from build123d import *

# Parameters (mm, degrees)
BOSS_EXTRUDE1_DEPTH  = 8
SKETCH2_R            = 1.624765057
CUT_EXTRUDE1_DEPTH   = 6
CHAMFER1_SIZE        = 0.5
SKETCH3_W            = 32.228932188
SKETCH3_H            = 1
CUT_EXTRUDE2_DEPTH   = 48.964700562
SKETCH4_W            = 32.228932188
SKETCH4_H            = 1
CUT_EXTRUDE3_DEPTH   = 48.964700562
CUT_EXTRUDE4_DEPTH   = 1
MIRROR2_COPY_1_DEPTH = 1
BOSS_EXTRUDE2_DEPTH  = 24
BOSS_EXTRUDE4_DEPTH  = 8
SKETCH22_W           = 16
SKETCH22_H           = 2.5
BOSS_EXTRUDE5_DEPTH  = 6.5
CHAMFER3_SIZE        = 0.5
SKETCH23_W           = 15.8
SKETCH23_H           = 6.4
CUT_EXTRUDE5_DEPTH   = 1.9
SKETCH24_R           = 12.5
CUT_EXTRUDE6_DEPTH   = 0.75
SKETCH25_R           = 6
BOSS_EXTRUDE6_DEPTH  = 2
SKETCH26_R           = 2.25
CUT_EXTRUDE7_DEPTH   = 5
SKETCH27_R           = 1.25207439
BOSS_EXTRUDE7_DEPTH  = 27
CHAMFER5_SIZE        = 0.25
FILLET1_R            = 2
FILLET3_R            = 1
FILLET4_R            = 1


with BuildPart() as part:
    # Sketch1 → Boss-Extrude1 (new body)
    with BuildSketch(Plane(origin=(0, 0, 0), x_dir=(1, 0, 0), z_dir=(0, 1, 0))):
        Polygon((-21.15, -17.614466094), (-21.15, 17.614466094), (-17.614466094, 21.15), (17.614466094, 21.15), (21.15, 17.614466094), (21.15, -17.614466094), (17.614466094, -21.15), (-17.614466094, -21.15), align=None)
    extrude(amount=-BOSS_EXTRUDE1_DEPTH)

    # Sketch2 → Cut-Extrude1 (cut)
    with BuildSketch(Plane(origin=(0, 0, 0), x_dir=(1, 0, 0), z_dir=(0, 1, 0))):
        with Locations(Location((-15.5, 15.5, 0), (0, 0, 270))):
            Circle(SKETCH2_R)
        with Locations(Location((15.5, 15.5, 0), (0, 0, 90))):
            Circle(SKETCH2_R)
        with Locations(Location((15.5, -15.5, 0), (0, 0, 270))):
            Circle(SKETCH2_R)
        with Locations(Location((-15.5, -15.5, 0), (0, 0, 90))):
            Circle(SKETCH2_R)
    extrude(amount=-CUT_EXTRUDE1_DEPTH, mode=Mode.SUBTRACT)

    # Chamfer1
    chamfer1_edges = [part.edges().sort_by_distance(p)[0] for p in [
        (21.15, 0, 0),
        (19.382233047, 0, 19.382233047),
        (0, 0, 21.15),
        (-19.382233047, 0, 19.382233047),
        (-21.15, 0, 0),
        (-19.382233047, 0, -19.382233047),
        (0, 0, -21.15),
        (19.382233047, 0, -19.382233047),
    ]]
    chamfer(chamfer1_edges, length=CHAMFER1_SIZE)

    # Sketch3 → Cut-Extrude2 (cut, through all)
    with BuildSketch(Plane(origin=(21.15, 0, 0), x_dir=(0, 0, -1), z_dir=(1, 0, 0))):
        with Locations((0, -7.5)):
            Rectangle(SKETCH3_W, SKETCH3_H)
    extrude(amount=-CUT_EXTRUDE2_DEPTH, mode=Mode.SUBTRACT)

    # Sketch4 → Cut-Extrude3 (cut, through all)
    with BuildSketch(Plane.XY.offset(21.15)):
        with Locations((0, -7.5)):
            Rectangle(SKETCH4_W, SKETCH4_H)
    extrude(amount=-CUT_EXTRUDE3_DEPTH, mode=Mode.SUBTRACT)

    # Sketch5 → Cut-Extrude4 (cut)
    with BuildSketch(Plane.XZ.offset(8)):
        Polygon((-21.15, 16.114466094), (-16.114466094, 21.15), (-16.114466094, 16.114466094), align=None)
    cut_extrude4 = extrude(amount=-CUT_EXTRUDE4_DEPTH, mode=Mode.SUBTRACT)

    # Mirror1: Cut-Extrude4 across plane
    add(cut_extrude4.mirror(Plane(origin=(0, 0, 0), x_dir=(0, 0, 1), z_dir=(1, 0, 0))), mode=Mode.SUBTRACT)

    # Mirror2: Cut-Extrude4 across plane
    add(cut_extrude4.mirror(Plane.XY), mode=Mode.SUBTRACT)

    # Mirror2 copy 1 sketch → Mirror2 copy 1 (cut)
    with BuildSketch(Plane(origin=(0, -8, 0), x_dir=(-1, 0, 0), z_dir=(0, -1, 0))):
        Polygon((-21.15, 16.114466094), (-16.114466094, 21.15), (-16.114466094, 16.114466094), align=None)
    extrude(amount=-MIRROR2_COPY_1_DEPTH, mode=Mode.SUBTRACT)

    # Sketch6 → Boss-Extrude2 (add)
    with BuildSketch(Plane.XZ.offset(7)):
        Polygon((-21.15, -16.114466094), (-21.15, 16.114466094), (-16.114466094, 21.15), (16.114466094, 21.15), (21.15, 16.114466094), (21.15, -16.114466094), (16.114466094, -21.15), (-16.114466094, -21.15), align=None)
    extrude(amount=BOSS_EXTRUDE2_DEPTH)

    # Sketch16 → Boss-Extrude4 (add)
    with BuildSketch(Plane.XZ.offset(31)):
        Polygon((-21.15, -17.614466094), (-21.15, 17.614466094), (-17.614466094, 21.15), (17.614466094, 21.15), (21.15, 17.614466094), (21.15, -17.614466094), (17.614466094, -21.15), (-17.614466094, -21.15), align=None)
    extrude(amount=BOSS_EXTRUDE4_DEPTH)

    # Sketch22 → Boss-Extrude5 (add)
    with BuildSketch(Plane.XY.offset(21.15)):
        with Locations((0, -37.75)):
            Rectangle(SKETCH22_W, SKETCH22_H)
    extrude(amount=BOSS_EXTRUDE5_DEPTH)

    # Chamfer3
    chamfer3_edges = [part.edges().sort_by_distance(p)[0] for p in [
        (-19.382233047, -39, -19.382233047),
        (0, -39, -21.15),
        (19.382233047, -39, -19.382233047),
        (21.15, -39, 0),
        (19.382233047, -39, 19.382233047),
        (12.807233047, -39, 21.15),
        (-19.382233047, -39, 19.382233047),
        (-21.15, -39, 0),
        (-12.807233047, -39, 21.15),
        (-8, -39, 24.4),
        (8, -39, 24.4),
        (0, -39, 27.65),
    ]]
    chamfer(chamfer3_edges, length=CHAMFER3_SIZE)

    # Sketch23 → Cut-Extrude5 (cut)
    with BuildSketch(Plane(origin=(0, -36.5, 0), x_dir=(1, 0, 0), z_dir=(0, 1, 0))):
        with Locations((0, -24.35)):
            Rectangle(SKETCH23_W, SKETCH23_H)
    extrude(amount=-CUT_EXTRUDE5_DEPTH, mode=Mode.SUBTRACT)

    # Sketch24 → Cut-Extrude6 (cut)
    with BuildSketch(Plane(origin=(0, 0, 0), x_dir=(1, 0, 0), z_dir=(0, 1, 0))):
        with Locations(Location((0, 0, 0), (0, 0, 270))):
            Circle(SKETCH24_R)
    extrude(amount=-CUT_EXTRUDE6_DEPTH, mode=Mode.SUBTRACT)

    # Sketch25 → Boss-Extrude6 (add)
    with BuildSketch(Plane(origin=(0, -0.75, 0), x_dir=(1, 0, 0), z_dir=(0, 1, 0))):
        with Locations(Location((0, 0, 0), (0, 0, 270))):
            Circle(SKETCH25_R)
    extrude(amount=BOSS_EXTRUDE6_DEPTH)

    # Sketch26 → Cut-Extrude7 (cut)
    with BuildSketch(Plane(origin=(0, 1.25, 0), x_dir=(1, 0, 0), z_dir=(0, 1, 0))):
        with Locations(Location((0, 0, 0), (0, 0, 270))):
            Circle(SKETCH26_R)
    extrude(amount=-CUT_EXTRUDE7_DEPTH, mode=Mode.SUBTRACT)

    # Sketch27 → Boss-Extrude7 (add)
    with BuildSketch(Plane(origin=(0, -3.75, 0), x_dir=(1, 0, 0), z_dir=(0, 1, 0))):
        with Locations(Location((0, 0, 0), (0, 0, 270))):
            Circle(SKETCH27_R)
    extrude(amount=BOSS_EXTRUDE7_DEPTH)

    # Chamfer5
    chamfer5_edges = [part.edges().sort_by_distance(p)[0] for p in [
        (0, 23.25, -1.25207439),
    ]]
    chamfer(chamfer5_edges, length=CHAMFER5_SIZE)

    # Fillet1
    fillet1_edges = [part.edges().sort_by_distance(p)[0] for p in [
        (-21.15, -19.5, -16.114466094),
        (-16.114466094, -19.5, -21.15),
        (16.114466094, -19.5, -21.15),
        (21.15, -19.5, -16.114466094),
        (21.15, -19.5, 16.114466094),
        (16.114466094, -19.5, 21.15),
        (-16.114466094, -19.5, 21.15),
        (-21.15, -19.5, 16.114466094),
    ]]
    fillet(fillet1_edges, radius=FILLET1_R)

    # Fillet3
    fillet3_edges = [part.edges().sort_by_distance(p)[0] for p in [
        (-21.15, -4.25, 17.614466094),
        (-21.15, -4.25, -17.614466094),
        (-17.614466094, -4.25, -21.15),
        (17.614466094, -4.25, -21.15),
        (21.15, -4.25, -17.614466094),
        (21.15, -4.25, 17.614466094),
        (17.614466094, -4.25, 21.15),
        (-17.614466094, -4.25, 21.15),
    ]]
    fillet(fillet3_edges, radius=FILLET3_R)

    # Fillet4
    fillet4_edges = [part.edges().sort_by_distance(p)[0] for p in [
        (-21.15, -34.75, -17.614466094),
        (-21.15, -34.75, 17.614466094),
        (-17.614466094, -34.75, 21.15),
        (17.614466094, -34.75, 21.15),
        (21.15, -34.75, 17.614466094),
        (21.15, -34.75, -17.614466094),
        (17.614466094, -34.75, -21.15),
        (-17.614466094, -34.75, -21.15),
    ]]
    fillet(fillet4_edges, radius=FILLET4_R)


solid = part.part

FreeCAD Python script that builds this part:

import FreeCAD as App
import Part
import Sketcher

V = App.Vector


def edges_at(feature, points):
    """Names of the edges that pass closest to the given points."""
    edges = feature.Shape.Edges
    near = lambda p: min(range(len(edges)), key=lambda i: edges[i].distToShape(Part.Vertex(*p))[0])
    return sorted({f"Edge{near(p) + 1}" for p in points})


def add_polygon(sketch, points):
    """Adds a closed chain of lines whose ends are joined by coincident constraints."""
    first, n = sketch.GeometryCount, len(points)
    for a, b in zip(points, points[1:] + points[:1]):
        sketch.addGeometry(Part.LineSegment(App.Vector(*a, 0), App.Vector(*b, 0)), False)
    for i in range(n):
        sketch.addConstraint(Sketcher.Constraint("Coincident", first + i, 2, first + (i + 1) % n, 1))

doc = App.newDocument("Part")
body = doc.addObject("PartDesign::Body", "Body")

# Sketch on XZ plane
sketch1 = doc.addObject("Sketcher::SketchObject", "Sketch")
body.addObject(sketch1)
sketch1.AttachmentSupport = (doc.XZ_Plane, [""])
sketch1.MapMode = "FlatFace"
add_polygon(sketch1, [(-21, -18), (-21, 18), (-18, 21), (18, 21), (21, 18), (21, -18), (18, -21), (-18, -21)])  # lines 0-7
sketch1.addConstraint([
    Sketcher.Constraint("Vertical", 0),
    Sketcher.Constraint("Horizontal", 2),
    Sketcher.Constraint("Vertical", 4),
    Sketcher.Constraint("Horizontal", 6),
    Sketcher.Constraint("Symmetric", 0, 2, 4, 2, -1, 1),
    Sketcher.Constraint("Symmetric", 1, 2, 5, 2, -1, 1),
    Sketcher.Constraint("Perpendicular", 1, 3),
    Sketcher.Constraint("Perpendicular", 5, 7),
    Sketcher.Constraint("Horizontal", 0, 2, 3, 2),
    Sketcher.Constraint("Horizontal", 4, 2, 7, 2),
    Sketcher.Constraint("Vertical", 2, 2, 5, 2),
    Sketcher.Constraint("Equal", 6, 0),
    Sketcher.Constraint("Distance", 1, 5.0),
    Sketcher.Constraint("DistanceX", 0, 2, 3, 2, 42.3),
])
pad1 = doc.addObject("PartDesign::Pad", "Pad")
body.addObject(pad1)
pad1.Profile = sketch1
pad1.Length = 8

# Sketch on XZ plane
sketch2 = doc.addObject("Sketcher::SketchObject", "Sketch001")
body.addObject(sketch2)
sketch2.AttachmentSupport = (doc.XZ_Plane, [""])
sketch2.MapMode = "FlatFace"
sketch2.addGeometry([
    Part.Circle(V(-15.5, -15.5, 0), V(0, 0, 1), 1.6),
    Part.Circle(V(15.5, -15.5, 0), V(0, 0, 1), 1.6),
    Part.Circle(V(15.5, 15.5, 0), V(0, 0, 1), 1.6),
    Part.Circle(V(-15.5, 15.5, 0), V(0, 0, 1), 1.6),
], False)
sketch2.addConstraint([
    Sketcher.Constraint("Equal", 0, 1),
    Sketcher.Constraint("Equal", 1, 2),
    Sketcher.Constraint("Equal", 2, 3),
    Sketcher.Constraint("Symmetric", 0, 3, 2, 3, -1, 1),
    Sketcher.Constraint("Symmetric", 1, 3, 3, 3, -1, 1),
    Sketcher.Constraint("Symmetric", 0, 3, 1, 3, -2),
    Sketcher.Constraint("DistanceX", 0, 3, 1, 3, 31.0),
    Sketcher.Constraint("DistanceY", 1, 3, 2, 3, 31.0),
    Sketcher.Constraint("Diameter", 0, 3.24953),
])
pocket1 = doc.addObject("PartDesign::Pocket", "Pocket")
body.addObject(pocket1)
pocket1.Profile = sketch2
pocket1.Length = 6
pocket1.Reversed = True
doc.recompute()

chamfer = doc.addObject("PartDesign::Chamfer", "Chamfer")
body.addObject(chamfer)
chamfer.Base = (pocket1, edges_at(pocket1, [
    (21.15, 0, 0),
    (19.382, 0, 19.382),
    (0, 0, 21.15),
    (-19.382, 0, 19.382),
    (-21.15, 0, 0),
    (-19.382, 0, -19.382),
    (0, 0, -21.15),
    (19.382, 0, -19.382),
]))
chamfer.Size = 0.5

# Sketch on YZ plane
sketch3 = doc.addObject("Sketcher::SketchObject", "Sketch002")
body.addObject(sketch3)
sketch3.AttachmentSupport = (doc.YZ_Plane, [""])
sketch3.MapMode = "FlatFace"
sketch3.AttachmentOffset = App.Placement(V(0, 0, 21.15), App.Rotation())
add_polygon(sketch3, [(-7, 16.1), (-8, 16.1), (-8, -16.1), (-7, -16.1)])  # lines 0-3
sketch3.addConstraint([
    Sketcher.Constraint("Horizontal", 0),
    Sketcher.Constraint("Vertical", 1),
    Sketcher.Constraint("Horizontal", 2),
    Sketcher.Constraint("Vertical", 3),
    Sketcher.Constraint("DistanceX", 0, 2, 0, 1, 1.0),
    Sketcher.Constraint("DistanceX", 0, 2, -1, 1, 8.0),
    Sketcher.Constraint("DistanceY", 1, 2, 1, 1, 32.228932),
    Sketcher.Constraint("DistanceY", -1, 1, 0, 2, 16.114466),
])
pocket2 = doc.addObject("PartDesign::Pocket", "Pocket001")
body.addObject(pocket2)
pocket2.Profile = sketch3
pocket2.Type = "ThroughAll"

# Sketch on XY plane
sketch4 = doc.addObject("Sketcher::SketchObject", "Sketch003")
body.addObject(sketch4)
sketch4.AttachmentSupport = (doc.XY_Plane, [""])
sketch4.MapMode = "FlatFace"
sketch4.AttachmentOffset = App.Placement(V(0, 0, 21.15), App.Rotation())
add_polygon(sketch4, [(-16.1, -7), (-16.1, -8), (16.1, -8), (16.1, -7)])  # lines 0-3
sketch4.addConstraint([
    Sketcher.Constraint("Vertical", 0),
    Sketcher.Constraint("Horizontal", 1),
    Sketcher.Constraint("Vertical", 2),
    Sketcher.Constraint("Horizontal", 3),
    Sketcher.Constraint("DistanceY", 0, 2, 0, 1, 1.0),
    Sketcher.Constraint("DistanceY", 0, 2, -1, 1, 8.0),
    Sketcher.Constraint("DistanceX", 1, 1, 1, 2, 32.228932),
    Sketcher.Constraint("DistanceX", 0, 2, -1, 1, 16.114466),
])
pocket3 = doc.addObject("PartDesign::Pocket", "Pocket002")
body.addObject(pocket3)
pocket3.Profile = sketch4
pocket3.Type = "ThroughAll"

# Sketch on XZ plane
sketch5 = doc.addObject("Sketcher::SketchObject", "Sketch004")
body.addObject(sketch5)
sketch5.AttachmentSupport = (doc.XZ_Plane, [""])
sketch5.MapMode = "FlatFace"
sketch5.AttachmentOffset = App.Placement(V(0, 0, 8), App.Rotation())
add_polygon(sketch5, [(-16, 21), (-21, 16), (-16, 16)])  # lines 0-2
sketch5.addConstraint([
    Sketcher.Constraint("Horizontal", 1),
    Sketcher.Constraint("Vertical", 2),
    Sketcher.Constraint("Equal", 1, 2),
    Sketcher.Constraint("DistanceX", 0, 2, -1, 1, 21.15),
    Sketcher.Constraint("DistanceY", -1, 1, 2, 2, 21.15),
    Sketcher.Constraint("Distance", 0, 7.12132),
])
pocket4 = doc.addObject("PartDesign::Pocket", "Pocket003")
body.addObject(pocket4)
pocket4.Profile = sketch5
pocket4.Length = 1
doc.recompute()

mirrored = doc.addObject("PartDesign::Mirrored", "Mirrored")
body.addObject(mirrored)
mirrored.Originals = [pocket4]
mirrored.MirrorPlane = (doc.YZ_Plane, [""])
body.Tip = mirrored
doc.recompute()

mirrored2 = doc.addObject("PartDesign::Mirrored", "Mirrored001")
body.addObject(mirrored2)
mirrored2.Originals = [pocket4]
mirrored2.MirrorPlane = (doc.XY_Plane, [""])
body.Tip = mirrored2

# Sketch on XZ plane
sketch6 = doc.addObject("Sketcher::SketchObject", "Sketch005")
body.addObject(sketch6)
sketch6.AttachmentSupport = (doc.XZ_Plane, [""])
sketch6.MapMode = "FlatFace"
sketch6.AttachmentOffset = App.Placement(V(0, 0, 8), App.Rotation())
add_polygon(sketch6, [(16, -21), (21, -16), (16, -16)])  # lines 0-2
sketch6.addConstraint([
    Sketcher.Constraint("Horizontal", 1),
    Sketcher.Constraint("Vertical", 2),
    Sketcher.Constraint("Equal", 1, 2),
    Sketcher.Constraint("DistanceX", -1, 1, 0, 2, 21.15),
    Sketcher.Constraint("DistanceY", 2, 2, -1, 1, 21.15),
    Sketcher.Constraint("Distance", 0, 7.12132),
])
pocket5 = doc.addObject("PartDesign::Pocket", "Pocket004")
body.addObject(pocket5)
pocket5.Profile = sketch6
pocket5.Length = 1

# Sketch on XZ plane
sketch7 = doc.addObject("Sketcher::SketchObject", "Sketch006")
body.addObject(sketch7)
sketch7.AttachmentSupport = (doc.XZ_Plane, [""])
sketch7.MapMode = "FlatFace"
sketch7.AttachmentOffset = App.Placement(V(0, 0, 7), App.Rotation())
add_polygon(sketch7, [(-21, 16), (-21, -16), (-16, -21), (16, -21), (21, -16), (21, 16), (16, 21), (-16, 21)])  # lines 0-7
sketch7.addConstraint([
    Sketcher.Constraint("Vertical", 0),
    Sketcher.Constraint("Horizontal", 2),
    Sketcher.Constraint("Vertical", 4),
    Sketcher.Constraint("Horizontal", 6),
    Sketcher.Constraint("Symmetric", 0, 2, 4, 2, -1, 1),
    Sketcher.Constraint("Symmetric", 1, 2, 5, 2, -1, 1),
    Sketcher.Constraint("Perpendicular", 1, 3),
    Sketcher.Constraint("Perpendicular", 5, 7),
    Sketcher.Constraint("Horizontal", 0, 2, 3, 2),
    Sketcher.Constraint("Horizontal", 4, 2, 7, 2),
    Sketcher.Constraint("Vertical", 2, 2, 5, 2),
    Sketcher.Constraint("Equal", 6, 0),
    Sketcher.Constraint("DistanceX", 0, 2, 3, 2, 42.3),
    Sketcher.Constraint("Distance", 1, 7.12132),
])
pad2 = doc.addObject("PartDesign::Pad", "Pad001")
body.addObject(pad2)
pad2.Profile = sketch7
pad2.Length = 24

# Sketch on XZ plane
sketch8 = doc.addObject("Sketcher::SketchObject", "Sketch007")
body.addObject(sketch8)
sketch8.AttachmentSupport = (doc.XZ_Plane, [""])
sketch8.MapMode = "FlatFace"
sketch8.AttachmentOffset = App.Placement(V(0, 0, 31), App.Rotation())
add_polygon(sketch8, [(-21, 18), (-21, -18), (-18, -21), (18, -21), (21, -18), (21, 18), (18, 21), (-18, 21)])  # lines 0-7
sketch8.addConstraint([
    Sketcher.Constraint("Vertical", 0),
    Sketcher.Constraint("Horizontal", 2),
    Sketcher.Constraint("Vertical", 4),
    Sketcher.Constraint("Horizontal", 6),
    Sketcher.Constraint("Symmetric", 0, 2, 4, 2, -1, 1),
    Sketcher.Constraint("Symmetric", 1, 2, 5, 2, -1, 1),
    Sketcher.Constraint("Perpendicular", 1, 3),
    Sketcher.Constraint("Perpendicular", 5, 7),
    Sketcher.Constraint("Horizontal", 0, 2, 3, 2),
    Sketcher.Constraint("Horizontal", 4, 2, 7, 2),
    Sketcher.Constraint("Vertical", 2, 2, 5, 2),
    Sketcher.Constraint("Equal", 6, 0),
    Sketcher.Constraint("Distance", 1, 5.0),
    Sketcher.Constraint("DistanceX", 0, 2, 3, 2, 42.3),
])
pad3 = doc.addObject("PartDesign::Pad", "Pad002")
body.addObject(pad3)
pad3.Profile = sketch8
pad3.Length = 8

# Sketch on XY plane
sketch9 = doc.addObject("Sketcher::SketchObject", "Sketch008")
body.addObject(sketch9)
sketch9.AttachmentSupport = (doc.XY_Plane, [""])
sketch9.MapMode = "FlatFace"
sketch9.AttachmentOffset = App.Placement(V(0, 0, 21.15), App.Rotation())
add_polygon(sketch9, [(-8, -36.5), (-8, -39), (8, -39), (8, -36.5)])  # lines 0-3
sketch9.addConstraint([
    Sketcher.Constraint("Vertical", 0),
    Sketcher.Constraint("Horizontal", 1),
    Sketcher.Constraint("Vertical", 2),
    Sketcher.Constraint("Horizontal", 3),
    Sketcher.Constraint("DistanceX", 1, 1, 1, 2, 16.0),
    Sketcher.Constraint("DistanceY", 0, 2, 0, 1, 2.5),
    Sketcher.Constraint("DistanceX", 0, 2, -1, 1, 8.0),
    Sketcher.Constraint("DistanceY", 0, 2, -1, 1, 39.0),
])
pad4 = doc.addObject("PartDesign::Pad", "Pad003")
body.addObject(pad4)
pad4.Profile = sketch9
pad4.Length = 6.5
doc.recompute()

chamfer2 = doc.addObject("PartDesign::Chamfer", "Chamfer001")
body.addObject(chamfer2)
chamfer2.Base = (pad4, edges_at(pad4, [
    (-19.382, -39, -19.382),
    (0, -39, -21.15),
    (19.382, -39, -19.382),
    (21.15, -39, 0),
    (19.382, -39, 19.382),
    (12.807, -39, 21.15),
    (-19.382, -39, 19.382),
    (-21.15, -39, 0),
    (-12.807, -39, 21.15),
    (-8, -39, 24.4),
    (8, -39, 24.4),
    (0, -39, 27.65),
]))
chamfer2.Size = 0.5

# Sketch on XZ plane
sketch10 = doc.addObject("Sketcher::SketchObject", "Sketch009")
body.addObject(sketch10)
sketch10.AttachmentSupport = (doc.XZ_Plane, [""])
sketch10.MapMode = "FlatFace"
sketch10.AttachmentOffset = App.Placement(V(0, 0, 36.5), App.Rotation())
add_polygon(sketch10, [(-8, 21), (-8, 28), (8, 28), (8, 21)])  # lines 0-3
sketch10.addConstraint([
    Sketcher.Constraint("Vertical", 0),
    Sketcher.Constraint("Horizontal", 1),
    Sketcher.Constraint("Vertical", 2),
    Sketcher.Constraint("Horizontal", 3),
    Sketcher.Constraint("DistanceX", 1, 1, 1, 2, 15.8),
    Sketcher.Constraint("DistanceY", 0, 1, 0, 2, 6.4),
    Sketcher.Constraint("DistanceX", 0, 2, -1, 1, 7.9),
    Sketcher.Constraint("DistanceY", -1, 1, 0, 2, 27.55),
])
pocket6 = doc.addObject("PartDesign::Pocket", "Pocket005")
body.addObject(pocket6)
pocket6.Profile = sketch10
pocket6.Length = 1.9
pocket6.Reversed = True

# Sketch on XZ plane
sketch11 = doc.addObject("Sketcher::SketchObject", "Sketch010")
body.addObject(sketch11)
sketch11.AttachmentSupport = (doc.XZ_Plane, [""])
sketch11.MapMode = "FlatFace"
sketch11.addGeometry(Part.Circle(V(0, 0, 0), V(0, 0, 1), 12), False)
sketch11.addConstraint([
    Sketcher.Constraint("Coincident", 0, 3, -1, 1),
    Sketcher.Constraint("Diameter", 0, 25.0),
])
pocket7 = doc.addObject("PartDesign::Pocket", "Pocket006")
body.addObject(pocket7)
pocket7.Profile = sketch11
pocket7.Length = 0.75
pocket7.Reversed = True

# Sketch on XZ plane
sketch12 = doc.addObject("Sketcher::SketchObject", "Sketch011")
body.addObject(sketch12)
sketch12.AttachmentSupport = (doc.XZ_Plane, [""])
sketch12.MapMode = "FlatFace"
sketch12.AttachmentOffset = App.Placement(V(0, 0, 0.75), App.Rotation())
sketch12.addGeometry(Part.Circle(V(0, 0, 0), V(0, 0, 1), 6), False)
sketch12.addConstraint([
    Sketcher.Constraint("Coincident", 0, 3, -1, 1),
    Sketcher.Constraint("Diameter", 0, 12.0),
])
pad5 = doc.addObject("PartDesign::Pad", "Pad004")
body.addObject(pad5)
pad5.Profile = sketch12
pad5.Length = 2
pad5.Reversed = True

# Sketch on XZ plane
sketch13 = doc.addObject("Sketcher::SketchObject", "Sketch012")
body.addObject(sketch13)
sketch13.AttachmentSupport = (doc.XZ_Plane, [""])
sketch13.MapMode = "FlatFace"
sketch13.AttachmentOffset = App.Placement(V(0, 0, -1.25), App.Rotation())
sketch13.addGeometry(Part.Circle(V(0, 0, 0), V(0, 0, 1), 2.2), False)
sketch13.addConstraint([
    Sketcher.Constraint("Coincident", 0, 3, -1, 1),
    Sketcher.Constraint("Diameter", 0, 4.5),
])
pocket8 = doc.addObject("PartDesign::Pocket", "Pocket007")
body.addObject(pocket8)
pocket8.Profile = sketch13
pocket8.Length = 5
pocket8.Reversed = True

# Sketch on XZ plane
sketch14 = doc.addObject("Sketcher::SketchObject", "Sketch013")
body.addObject(sketch14)
sketch14.AttachmentSupport = (doc.XZ_Plane, [""])
sketch14.MapMode = "FlatFace"
sketch14.AttachmentOffset = App.Placement(V(0, 0, 3.75), App.Rotation())
sketch14.addGeometry(Part.Circle(V(0, 0, 0), V(0, 0, 1), 1.3), False)
sketch14.addConstraint([
    Sketcher.Constraint("Coincident", 0, 3, -1, 1),
    Sketcher.Constraint("Diameter", 0, 2.504149),
])
pad6 = doc.addObject("PartDesign::Pad", "Pad005")
body.addObject(pad6)
pad6.Profile = sketch14
pad6.Length = 27
pad6.Reversed = True
doc.recompute()

chamfer3 = doc.addObject("PartDesign::Chamfer", "Chamfer002")
body.addObject(chamfer3)
chamfer3.Base = (pad6, edges_at(pad6, [(0, 23.25, -1.252)]))
chamfer3.Size = 0.25
doc.recompute()

fillet = doc.addObject("PartDesign::Fillet", "Fillet")
body.addObject(fillet)
fillet.Base = (chamfer3, edges_at(chamfer3, [
    (-21.15, -19.5, -16.114),
    (-16.114, -19.5, -21.15),
    (16.114, -19.5, -21.15),
    (21.15, -19.5, -16.114),
    (21.15, -19.5, 16.114),
    (16.114, -19.5, 21.15),
    (-16.114, -19.5, 21.15),
    (-21.15, -19.5, 16.114),
]))
fillet.Radius = 2
doc.recompute()

fillet2 = doc.addObject("PartDesign::Fillet", "Fillet001")
body.addObject(fillet2)
fillet2.Base = (fillet, edges_at(fillet, [
    (-21.15, -4.25, 17.614),
    (-21.15, -4.25, -17.614),
    (-17.614, -4.25, -21.15),
    (17.614, -4.25, -21.15),
    (21.15, -4.25, -17.614),
    (21.15, -4.25, 17.614),
    (17.614, -4.25, 21.15),
    (-17.614, -4.25, 21.15),
]))
fillet2.Radius = 1
doc.recompute()

fillet3 = doc.addObject("PartDesign::Fillet", "Fillet002")
body.addObject(fillet3)
fillet3.Base = (fillet2, edges_at(fillet2, [
    (-21.15, -34.75, -17.614),
    (-21.15, -34.75, 17.614),
    (-17.614, -34.75, 21.15),
    (17.614, -34.75, 21.15),
    (21.15, -34.75, 17.614),
    (21.15, -34.75, -17.614),
    (17.614, -34.75, -21.15),
    (-17.614, -34.75, -21.15),
]))
fillet3.Radius = 1

doc.recompute()
